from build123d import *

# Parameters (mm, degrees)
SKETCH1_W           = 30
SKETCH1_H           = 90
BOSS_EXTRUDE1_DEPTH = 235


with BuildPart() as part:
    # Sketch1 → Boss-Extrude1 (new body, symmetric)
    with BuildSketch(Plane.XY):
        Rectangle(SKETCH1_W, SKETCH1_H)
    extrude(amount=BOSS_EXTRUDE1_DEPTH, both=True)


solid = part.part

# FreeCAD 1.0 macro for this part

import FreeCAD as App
import Part
import Sketcher
from FreeCAD import Vector


def add_polygon(sketch, points):
    """Adds a closed chain of lines whose ends are joined by coincident constraints."""
    first, n = sketch.GeometryCount, len(points)
    for a, b in zip(points, points[1:] + points[:1]):
        sketch.addGeometry(Part.LineSegment(App.Vector(*a, 0), App.Vector(*b, 0)), False)
    for i in range(n):
        sketch.addConstraint(Sketcher.Constraint("Coincident", first + i, 2, first + (i + 1) % n, 1))

doc = App.newDocument("Part")
body = doc.addObject("PartDesign::Body", "Body")

# Sketch on XY plane
sketch1 = doc.addObject("Sketcher::SketchObject", "Sketch")
body.addObject(sketch1)
sketch1.AttachmentSupport = (doc.XY_Plane, [""])
sketch1.MapMode = "FlatFace"
add_polygon(sketch1, [(-15, 45), (-15, -45), (15, -45), (15, 45)])  # lines 0-3
sketch1.addConstraint(Sketcher.Constraint("Vertical", 0))
sketch1.addConstraint(Sketcher.Constraint("Horizontal", 1))
sketch1.addConstraint(Sketcher.Constraint("Vertical", 2))
sketch1.addConstraint(Sketcher.Constraint("Horizontal", 3))
sketch1.addConstraint(Sketcher.Constraint("Symmetric", 0, 2, 2, 2, -1, 1))
sketch1.addConstraint(Sketcher.Constraint("DistanceX", 1, 1, 1, 2, 30.0))
sketch1.addConstraint(Sketcher.Constraint("DistanceY", 0, 2, 0, 1, 90.0))
pad1 = doc.addObject("PartDesign::Pad", "Pad")
body.addObject(pad1)
pad1.Profile = sketch1
pad1.Length = 470
pad1.Midplane = True

doc.recompute()
